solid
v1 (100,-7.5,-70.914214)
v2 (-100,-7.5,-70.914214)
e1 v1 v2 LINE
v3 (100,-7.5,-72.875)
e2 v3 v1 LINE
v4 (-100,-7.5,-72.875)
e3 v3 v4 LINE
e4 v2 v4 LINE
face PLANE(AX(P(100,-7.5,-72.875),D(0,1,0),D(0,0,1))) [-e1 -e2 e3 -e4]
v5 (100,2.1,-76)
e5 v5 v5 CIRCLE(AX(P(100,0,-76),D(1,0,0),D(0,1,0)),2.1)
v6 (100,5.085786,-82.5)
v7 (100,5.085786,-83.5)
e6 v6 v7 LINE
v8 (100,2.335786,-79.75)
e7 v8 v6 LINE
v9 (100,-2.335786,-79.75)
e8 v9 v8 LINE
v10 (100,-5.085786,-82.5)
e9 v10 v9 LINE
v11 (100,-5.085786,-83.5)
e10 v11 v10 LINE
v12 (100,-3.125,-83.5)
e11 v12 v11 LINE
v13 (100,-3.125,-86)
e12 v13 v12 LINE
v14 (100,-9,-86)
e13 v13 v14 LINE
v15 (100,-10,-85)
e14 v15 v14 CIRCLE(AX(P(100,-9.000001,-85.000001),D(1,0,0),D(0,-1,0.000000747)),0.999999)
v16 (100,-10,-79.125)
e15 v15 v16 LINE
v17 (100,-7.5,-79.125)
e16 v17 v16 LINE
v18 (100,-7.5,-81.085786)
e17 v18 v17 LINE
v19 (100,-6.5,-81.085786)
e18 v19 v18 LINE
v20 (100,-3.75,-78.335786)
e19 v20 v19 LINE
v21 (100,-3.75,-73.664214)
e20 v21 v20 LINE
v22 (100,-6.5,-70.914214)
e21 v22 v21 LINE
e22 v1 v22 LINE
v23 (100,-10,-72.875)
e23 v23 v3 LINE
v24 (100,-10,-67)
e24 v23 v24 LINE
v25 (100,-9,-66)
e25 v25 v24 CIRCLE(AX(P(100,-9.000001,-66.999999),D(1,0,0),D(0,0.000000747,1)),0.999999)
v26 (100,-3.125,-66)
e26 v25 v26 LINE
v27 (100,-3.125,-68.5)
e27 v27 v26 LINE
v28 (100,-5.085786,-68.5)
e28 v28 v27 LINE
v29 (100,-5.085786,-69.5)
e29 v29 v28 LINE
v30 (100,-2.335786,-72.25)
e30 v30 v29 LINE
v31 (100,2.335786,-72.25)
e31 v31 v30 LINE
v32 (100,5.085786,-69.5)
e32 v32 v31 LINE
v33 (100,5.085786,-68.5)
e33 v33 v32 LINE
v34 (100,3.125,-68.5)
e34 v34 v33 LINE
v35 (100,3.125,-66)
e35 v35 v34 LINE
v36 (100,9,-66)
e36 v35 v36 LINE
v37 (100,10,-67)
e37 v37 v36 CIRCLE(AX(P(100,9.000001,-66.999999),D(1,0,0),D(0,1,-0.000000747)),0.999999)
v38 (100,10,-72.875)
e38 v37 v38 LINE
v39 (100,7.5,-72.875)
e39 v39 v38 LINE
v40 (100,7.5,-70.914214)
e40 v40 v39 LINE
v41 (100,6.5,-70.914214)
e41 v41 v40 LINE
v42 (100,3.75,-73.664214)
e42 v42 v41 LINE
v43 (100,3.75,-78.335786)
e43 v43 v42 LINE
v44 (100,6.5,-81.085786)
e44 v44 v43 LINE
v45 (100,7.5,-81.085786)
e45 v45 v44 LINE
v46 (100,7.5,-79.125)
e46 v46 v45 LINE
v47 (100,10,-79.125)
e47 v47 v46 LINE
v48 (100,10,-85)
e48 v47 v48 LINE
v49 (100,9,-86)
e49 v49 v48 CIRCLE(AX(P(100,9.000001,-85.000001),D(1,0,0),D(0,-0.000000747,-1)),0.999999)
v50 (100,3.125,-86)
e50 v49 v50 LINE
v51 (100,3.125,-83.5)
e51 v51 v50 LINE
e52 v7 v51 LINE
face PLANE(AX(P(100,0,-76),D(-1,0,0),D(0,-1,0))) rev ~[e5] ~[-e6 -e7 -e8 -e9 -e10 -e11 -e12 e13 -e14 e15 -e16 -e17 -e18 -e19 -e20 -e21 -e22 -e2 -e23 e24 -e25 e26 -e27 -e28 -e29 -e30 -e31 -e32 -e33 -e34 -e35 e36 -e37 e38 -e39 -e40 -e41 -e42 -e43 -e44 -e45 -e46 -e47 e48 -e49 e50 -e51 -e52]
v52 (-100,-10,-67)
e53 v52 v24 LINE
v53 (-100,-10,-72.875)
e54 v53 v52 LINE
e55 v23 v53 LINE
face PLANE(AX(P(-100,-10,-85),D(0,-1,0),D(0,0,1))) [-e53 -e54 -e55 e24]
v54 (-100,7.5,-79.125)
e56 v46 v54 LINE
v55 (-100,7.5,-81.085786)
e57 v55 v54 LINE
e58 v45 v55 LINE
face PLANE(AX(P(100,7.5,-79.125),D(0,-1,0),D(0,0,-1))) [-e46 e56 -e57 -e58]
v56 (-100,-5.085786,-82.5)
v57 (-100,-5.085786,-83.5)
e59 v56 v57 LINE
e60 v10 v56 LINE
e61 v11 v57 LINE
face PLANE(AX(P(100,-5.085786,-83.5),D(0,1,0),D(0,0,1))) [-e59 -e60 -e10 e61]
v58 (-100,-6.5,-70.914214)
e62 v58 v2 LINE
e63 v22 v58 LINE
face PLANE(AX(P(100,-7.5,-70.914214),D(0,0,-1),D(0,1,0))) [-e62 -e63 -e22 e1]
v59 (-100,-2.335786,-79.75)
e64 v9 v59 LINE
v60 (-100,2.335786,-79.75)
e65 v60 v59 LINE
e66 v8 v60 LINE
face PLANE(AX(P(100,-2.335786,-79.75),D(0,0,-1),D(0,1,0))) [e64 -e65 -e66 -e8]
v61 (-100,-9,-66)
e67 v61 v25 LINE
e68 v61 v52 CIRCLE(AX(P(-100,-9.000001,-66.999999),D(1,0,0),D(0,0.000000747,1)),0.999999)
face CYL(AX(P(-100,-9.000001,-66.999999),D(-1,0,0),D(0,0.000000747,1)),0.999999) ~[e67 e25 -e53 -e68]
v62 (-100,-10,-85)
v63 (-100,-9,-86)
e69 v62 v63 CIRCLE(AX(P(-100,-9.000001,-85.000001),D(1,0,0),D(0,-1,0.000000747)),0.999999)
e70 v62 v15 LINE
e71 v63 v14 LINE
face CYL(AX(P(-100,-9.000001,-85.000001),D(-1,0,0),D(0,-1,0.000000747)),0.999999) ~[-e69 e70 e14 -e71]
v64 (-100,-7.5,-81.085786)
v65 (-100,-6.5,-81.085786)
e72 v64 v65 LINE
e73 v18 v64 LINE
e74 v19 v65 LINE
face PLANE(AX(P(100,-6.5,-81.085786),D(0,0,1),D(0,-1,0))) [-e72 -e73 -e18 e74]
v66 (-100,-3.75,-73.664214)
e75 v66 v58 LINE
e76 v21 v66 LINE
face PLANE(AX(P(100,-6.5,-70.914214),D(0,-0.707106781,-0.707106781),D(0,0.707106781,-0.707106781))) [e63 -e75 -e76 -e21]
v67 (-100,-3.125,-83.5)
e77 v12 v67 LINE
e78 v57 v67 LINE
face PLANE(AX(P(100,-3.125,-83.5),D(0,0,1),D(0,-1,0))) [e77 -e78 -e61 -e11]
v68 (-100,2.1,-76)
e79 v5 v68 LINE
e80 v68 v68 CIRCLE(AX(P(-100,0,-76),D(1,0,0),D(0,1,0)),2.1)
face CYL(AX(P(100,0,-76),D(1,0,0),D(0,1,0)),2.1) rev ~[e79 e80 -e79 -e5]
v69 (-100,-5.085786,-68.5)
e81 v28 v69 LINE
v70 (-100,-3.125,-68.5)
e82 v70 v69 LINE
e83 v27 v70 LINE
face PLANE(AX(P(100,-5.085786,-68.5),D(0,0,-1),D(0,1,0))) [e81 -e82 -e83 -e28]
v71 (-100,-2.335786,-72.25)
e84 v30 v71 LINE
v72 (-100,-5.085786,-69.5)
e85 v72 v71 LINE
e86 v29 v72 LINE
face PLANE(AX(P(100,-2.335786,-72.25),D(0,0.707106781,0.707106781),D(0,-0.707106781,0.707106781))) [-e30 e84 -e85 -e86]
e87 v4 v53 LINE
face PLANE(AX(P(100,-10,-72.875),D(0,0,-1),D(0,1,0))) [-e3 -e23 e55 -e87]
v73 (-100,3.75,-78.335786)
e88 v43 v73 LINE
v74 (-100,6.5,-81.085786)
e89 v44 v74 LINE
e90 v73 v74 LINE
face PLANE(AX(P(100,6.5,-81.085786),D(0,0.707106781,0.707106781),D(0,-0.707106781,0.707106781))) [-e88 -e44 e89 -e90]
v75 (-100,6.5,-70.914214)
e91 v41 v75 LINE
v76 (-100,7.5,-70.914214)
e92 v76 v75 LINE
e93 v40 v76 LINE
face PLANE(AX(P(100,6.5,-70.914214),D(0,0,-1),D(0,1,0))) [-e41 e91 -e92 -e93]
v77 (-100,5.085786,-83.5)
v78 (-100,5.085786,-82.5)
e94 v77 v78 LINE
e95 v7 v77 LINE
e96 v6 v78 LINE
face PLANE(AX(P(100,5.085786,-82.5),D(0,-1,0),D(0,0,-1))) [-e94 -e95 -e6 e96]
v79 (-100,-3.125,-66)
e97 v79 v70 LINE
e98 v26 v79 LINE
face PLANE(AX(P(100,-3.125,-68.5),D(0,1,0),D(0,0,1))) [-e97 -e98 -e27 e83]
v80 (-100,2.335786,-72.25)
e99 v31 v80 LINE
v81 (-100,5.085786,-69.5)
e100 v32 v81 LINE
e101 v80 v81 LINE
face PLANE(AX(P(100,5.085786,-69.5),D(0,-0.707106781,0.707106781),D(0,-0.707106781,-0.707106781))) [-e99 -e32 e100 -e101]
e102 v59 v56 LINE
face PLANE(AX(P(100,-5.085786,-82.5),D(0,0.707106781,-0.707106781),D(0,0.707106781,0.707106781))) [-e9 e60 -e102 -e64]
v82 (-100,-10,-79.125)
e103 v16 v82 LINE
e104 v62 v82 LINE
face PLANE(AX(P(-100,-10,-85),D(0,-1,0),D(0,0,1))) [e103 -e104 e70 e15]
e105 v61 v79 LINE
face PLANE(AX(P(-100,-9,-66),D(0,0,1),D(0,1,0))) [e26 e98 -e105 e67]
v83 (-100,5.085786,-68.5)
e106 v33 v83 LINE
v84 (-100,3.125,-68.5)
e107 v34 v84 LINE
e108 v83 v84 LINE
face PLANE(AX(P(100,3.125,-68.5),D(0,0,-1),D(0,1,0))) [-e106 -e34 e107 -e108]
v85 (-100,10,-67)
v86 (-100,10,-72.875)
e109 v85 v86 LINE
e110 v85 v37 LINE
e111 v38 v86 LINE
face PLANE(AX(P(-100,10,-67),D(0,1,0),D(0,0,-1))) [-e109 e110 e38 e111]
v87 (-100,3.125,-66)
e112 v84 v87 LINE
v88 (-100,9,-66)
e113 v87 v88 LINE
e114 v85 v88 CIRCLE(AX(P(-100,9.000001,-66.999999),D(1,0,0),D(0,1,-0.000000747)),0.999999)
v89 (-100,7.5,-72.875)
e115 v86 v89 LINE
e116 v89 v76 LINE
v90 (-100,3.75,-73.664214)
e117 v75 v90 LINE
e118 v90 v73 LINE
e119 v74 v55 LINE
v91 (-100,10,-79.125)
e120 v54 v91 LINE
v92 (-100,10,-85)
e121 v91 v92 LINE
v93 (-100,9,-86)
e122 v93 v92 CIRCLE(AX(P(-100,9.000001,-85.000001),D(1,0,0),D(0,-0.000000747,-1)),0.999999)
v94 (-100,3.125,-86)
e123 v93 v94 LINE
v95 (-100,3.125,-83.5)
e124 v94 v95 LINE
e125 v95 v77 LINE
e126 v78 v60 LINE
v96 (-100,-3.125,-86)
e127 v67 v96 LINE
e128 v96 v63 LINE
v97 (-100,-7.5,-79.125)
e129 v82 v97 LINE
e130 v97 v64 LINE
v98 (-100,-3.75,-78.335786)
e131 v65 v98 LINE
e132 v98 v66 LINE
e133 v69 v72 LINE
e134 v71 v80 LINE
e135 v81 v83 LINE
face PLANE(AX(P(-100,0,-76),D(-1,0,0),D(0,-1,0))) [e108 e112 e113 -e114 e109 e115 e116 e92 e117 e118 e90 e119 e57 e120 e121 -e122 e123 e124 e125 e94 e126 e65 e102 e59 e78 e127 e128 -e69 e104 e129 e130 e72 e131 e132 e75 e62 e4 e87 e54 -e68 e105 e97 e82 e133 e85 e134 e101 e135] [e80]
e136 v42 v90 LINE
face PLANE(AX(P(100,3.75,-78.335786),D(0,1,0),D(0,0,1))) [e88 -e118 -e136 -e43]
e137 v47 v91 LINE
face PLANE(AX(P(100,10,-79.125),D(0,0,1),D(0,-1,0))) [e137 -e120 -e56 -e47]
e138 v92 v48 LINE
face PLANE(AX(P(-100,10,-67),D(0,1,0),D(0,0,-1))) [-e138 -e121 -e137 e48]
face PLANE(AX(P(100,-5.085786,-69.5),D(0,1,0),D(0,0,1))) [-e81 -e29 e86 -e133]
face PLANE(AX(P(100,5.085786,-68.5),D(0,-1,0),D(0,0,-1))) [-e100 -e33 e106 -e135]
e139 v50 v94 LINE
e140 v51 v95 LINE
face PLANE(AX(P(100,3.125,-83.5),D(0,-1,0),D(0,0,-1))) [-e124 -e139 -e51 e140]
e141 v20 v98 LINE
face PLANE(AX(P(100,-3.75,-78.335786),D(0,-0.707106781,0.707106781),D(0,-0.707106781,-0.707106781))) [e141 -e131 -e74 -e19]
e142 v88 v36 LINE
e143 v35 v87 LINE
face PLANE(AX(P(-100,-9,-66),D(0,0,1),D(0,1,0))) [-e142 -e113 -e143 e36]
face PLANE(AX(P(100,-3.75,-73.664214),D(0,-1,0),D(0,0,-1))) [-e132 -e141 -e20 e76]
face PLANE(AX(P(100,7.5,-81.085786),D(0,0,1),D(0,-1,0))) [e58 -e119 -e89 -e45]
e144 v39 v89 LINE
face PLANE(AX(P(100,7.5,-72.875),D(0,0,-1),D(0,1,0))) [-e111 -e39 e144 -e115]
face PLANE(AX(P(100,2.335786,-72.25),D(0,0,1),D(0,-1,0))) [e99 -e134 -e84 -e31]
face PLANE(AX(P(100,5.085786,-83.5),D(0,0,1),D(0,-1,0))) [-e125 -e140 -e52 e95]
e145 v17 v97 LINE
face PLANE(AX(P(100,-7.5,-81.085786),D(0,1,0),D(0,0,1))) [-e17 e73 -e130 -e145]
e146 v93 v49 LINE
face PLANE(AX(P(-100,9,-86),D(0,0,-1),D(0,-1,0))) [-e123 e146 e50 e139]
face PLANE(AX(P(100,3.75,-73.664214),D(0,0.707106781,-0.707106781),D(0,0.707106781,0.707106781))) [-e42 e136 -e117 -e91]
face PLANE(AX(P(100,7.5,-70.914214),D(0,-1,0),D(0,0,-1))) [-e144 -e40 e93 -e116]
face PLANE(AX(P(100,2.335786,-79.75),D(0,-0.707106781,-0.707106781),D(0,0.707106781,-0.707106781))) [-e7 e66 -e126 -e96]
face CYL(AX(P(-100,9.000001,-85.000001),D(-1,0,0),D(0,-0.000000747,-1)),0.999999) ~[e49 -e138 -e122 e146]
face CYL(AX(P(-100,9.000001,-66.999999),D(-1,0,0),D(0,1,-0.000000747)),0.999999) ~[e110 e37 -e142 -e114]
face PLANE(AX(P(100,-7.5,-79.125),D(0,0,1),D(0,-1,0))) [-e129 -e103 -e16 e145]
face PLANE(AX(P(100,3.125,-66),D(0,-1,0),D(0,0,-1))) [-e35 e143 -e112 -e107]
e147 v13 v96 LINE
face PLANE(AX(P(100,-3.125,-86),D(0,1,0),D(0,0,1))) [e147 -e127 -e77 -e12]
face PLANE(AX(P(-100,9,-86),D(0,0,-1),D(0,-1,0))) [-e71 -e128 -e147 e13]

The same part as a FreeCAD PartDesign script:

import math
import FreeCAD as App
import Part
import Sketcher


def add_polygon(sketch, points):
    """Adds a closed chain of lines whose ends are joined by coincident constraints."""
    first, n = sketch.GeometryCount, len(points)
    for a, b in zip(points, points[1:] + points[:1]):
        sketch.addGeometry(Part.LineSegment(App.Vector(*a, 0), App.Vector(*b, 0)), False)
    for i in range(n):
        sketch.addConstraint(Sketcher.Constraint("Coincident", first + i, 2, first + (i + 1) % n, 1))

doc = App.newDocument("Part")
body = doc.addObject("PartDesign::Body", "Body")

sketch1 = body.newObject("Sketcher::SketchObject", "Sketch")
sketch1.AttachmentSupport = (doc.getObject("YZ_Plane"), [""])
sketch1.MapMode = "FlatFace"
sketch1.addGeometry([
    Part.LineSegment(App.Vector(9, 10, 0), App.Vector(-9, 10, 0)),
    Part.ArcOfCircle(Part.Circle(App.Vector(-9, 9, 0), App.Vector(0, 0, 1), 1), math.radians(90), math.radians(180)),
    Part.LineSegment(App.Vector(-10, 9, 0), App.Vector(-10, -9, 0)),
    Part.ArcOfCircle(Part.Circle(App.Vector(-9, -9, 0), App.Vector(0, 0, 1), 1), math.radians(180), math.radians(270)),
    Part.LineSegment(App.Vector(-9, -10, 0), App.Vector(9, -10, 0)),
    Part.ArcOfCircle(Part.Circle(App.Vector(9, -9, 0), App.Vector(0, 0, 1), 1), math.radians(-90), math.radians(0)),
    Part.LineSegment(App.Vector(10, -9, 0), App.Vector(10, 9, 0)),
    Part.ArcOfCircle(Part.Circle(App.Vector(9, 9, 0), App.Vector(0, 0, 1), 1), math.radians(0), math.radians(90)),
], False)
sketch1.addConstraint([
    Sketcher.Constraint("Tangent", 0, 2, 1, 1),
    Sketcher.Constraint("Tangent", 1, 2, 2, 1),
    Sketcher.Constraint("Tangent", 2, 2, 3, 1),
    Sketcher.Constraint("Tangent", 3, 2, 4, 1),
    Sketcher.Constraint("Tangent", 4, 2, 5, 1),
    Sketcher.Constraint("Tangent", 5, 2, 6, 1),
    Sketcher.Constraint("Tangent", 6, 2, 7, 1),
    Sketcher.Constraint("Tangent", 7, 2, 0, 1),
    Sketcher.Constraint("Horizontal", 0),
    Sketcher.Constraint("Vertical", 2),
    Sketcher.Constraint("Horizontal", 4),
    Sketcher.Constraint("Vertical", 6),
    Sketcher.Constraint("Equal", 1, 3),
    Sketcher.Constraint("Equal", 3, 5),
    Sketcher.Constraint("Equal", 5, 7),
    Sketcher.Constraint("Symmetric", 1, 3, 5, 3, -1, 1),
    Sketcher.Constraint("Equal", 4, 2),
    Sketcher.Constraint("Radius", 1, 0.999999),
    Sketcher.Constraint("DistanceX", 0, 2, 0, 1, 18.0),
])
pad1 = body.newObject("PartDesign::Pad", "Pad")
pad1.Profile = sketch1
pad1.Length = 200

sketch2 = body.newObject("Sketcher::SketchObject", "Sketch001")
sketch2.AttachmentSupport = (doc.getObject("YZ_Plane"), [""])
sketch2.MapMode = "FlatFace"
sketch2.AttachmentOffset = App.Placement(App.Vector(0, 0, 200), App.Rotation())
add_polygon(sketch2, [(3.1, 10), (-3.1, 10), (-3.1, 7.5), (-5.1, 7.5), (-5.1, 6.5), (-2.3, 3.8), (2.3, 3.8), (5.1, 6.5), (5.1, 7.5), (3.1, 7.5)])
sketch2.addConstraint([
    Sketcher.Constraint("Horizontal", 0),
    Sketcher.Constraint("Vertical", 1),
    Sketcher.Constraint("Horizontal", 2),
    Sketcher.Constraint("Vertical", 3),
    Sketcher.Constraint("Horizontal", 5),
    Sketcher.Constraint("Vertical", 7),
    Sketcher.Constraint("Horizontal", 8),
    Sketcher.Constraint("Vertical", 9),
    Sketcher.Constraint("Symmetric", 3, 2, 6, 2, -2),
    Sketcher.Constraint("Symmetric", 1, 2, 8, 2, -2),
    Sketcher.Constraint("Perpendicular", 4, 6),
    Sketcher.Constraint("Equal", 4, 6),
    Sketcher.Constraint("DistanceY", 3, 2, 3, 1, 1.0),
    Sketcher.Constraint("DistanceY", 1, 2, 1, 1, 2.5),
    Sketcher.Constraint("DistanceY", -1, 1, 0, 2, 10.0),
    Sketcher.Constraint("DistanceX", 0, 2, 0, 1, 6.25),
    Sketcher.Constraint("DistanceY", -1, 1, 4, 2, 3.75),
    Sketcher.Constraint("DistanceX", 2, 2, 2, 1, 1.960786),
])
pocket1 = body.newObject("PartDesign::Pocket", "Pocket")
pocket1.Profile = sketch2
pocket1.Type = "ThroughAll"
doc.recompute()

polarpattern = body.newObject("PartDesign::PolarPattern", "PolarPattern")
polarpattern.Originals = [pocket1]
polarpattern.Axis = (doc.getObject("X_Axis"), [""])
polarpattern.Angle = 360
polarpattern.Occurrences = 4
body.Tip = polarpattern

sketch3 = body.newObject("Sketcher::SketchObject", "Sketch002")
sketch3.AttachmentSupport = (doc.getObject("YZ_Plane"), [""])
sketch3.MapMode = "FlatFace"
sketch3.AttachmentOffset = App.Placement(App.Vector(0, 0, 200), App.Rotation())
sketch3.addGeometry(Part.Circle(App.Vector(0, 0, 0), App.Vector(0, 0, 1), 2.1), False)
sketch3.addConstraint([
    Sketcher.Constraint("Coincident", 0, 3, -1, 1),
    Sketcher.Constraint("Diameter", 0, 4.2),
])
pocket2 = body.newObject("PartDesign::Pocket", "Pocket001")
pocket2.Profile = sketch3
pocket2.Type = "ThroughAll"
body2 = doc.addObject("PartDesign::Body", "Body001")
doc.recompute()

body.Placement = App.Placement(App.Vector(-100, 0, 0), App.Rotation(App.Vector(0, 0, 1), 0))
boolean = body2.newObject("PartDesign::Boolean", "Boolean")
boolean.Type = "Fuse"
boolean.addObjects([body])
body3 = doc.addObject("PartDesign::Body", "Body002")
doc.recompute()

body2.Placement = App.Placement(App.Vector(100, 0, 0), App.Rotation(App.Vector(0, 0, 1), 0))
boolean2 = body3.newObject("PartDesign::Boolean", "Boolean001")
boolean2.Type = "Fuse"
boolean2.addObjects([body2])
body4 = doc.addObject("PartDesign::Body", "Body003")
doc.recompute()

body3.Placement = App.Placement(App.Vector(-100, 0, -76), App.Rotation(App.Vector(0, 0, 1), 0))
boolean3 = body4.newObject("PartDesign::Boolean", "Boolean002")
boolean3.Type = "Fuse"
boolean3.addObjects([body3])

doc.recompute()
